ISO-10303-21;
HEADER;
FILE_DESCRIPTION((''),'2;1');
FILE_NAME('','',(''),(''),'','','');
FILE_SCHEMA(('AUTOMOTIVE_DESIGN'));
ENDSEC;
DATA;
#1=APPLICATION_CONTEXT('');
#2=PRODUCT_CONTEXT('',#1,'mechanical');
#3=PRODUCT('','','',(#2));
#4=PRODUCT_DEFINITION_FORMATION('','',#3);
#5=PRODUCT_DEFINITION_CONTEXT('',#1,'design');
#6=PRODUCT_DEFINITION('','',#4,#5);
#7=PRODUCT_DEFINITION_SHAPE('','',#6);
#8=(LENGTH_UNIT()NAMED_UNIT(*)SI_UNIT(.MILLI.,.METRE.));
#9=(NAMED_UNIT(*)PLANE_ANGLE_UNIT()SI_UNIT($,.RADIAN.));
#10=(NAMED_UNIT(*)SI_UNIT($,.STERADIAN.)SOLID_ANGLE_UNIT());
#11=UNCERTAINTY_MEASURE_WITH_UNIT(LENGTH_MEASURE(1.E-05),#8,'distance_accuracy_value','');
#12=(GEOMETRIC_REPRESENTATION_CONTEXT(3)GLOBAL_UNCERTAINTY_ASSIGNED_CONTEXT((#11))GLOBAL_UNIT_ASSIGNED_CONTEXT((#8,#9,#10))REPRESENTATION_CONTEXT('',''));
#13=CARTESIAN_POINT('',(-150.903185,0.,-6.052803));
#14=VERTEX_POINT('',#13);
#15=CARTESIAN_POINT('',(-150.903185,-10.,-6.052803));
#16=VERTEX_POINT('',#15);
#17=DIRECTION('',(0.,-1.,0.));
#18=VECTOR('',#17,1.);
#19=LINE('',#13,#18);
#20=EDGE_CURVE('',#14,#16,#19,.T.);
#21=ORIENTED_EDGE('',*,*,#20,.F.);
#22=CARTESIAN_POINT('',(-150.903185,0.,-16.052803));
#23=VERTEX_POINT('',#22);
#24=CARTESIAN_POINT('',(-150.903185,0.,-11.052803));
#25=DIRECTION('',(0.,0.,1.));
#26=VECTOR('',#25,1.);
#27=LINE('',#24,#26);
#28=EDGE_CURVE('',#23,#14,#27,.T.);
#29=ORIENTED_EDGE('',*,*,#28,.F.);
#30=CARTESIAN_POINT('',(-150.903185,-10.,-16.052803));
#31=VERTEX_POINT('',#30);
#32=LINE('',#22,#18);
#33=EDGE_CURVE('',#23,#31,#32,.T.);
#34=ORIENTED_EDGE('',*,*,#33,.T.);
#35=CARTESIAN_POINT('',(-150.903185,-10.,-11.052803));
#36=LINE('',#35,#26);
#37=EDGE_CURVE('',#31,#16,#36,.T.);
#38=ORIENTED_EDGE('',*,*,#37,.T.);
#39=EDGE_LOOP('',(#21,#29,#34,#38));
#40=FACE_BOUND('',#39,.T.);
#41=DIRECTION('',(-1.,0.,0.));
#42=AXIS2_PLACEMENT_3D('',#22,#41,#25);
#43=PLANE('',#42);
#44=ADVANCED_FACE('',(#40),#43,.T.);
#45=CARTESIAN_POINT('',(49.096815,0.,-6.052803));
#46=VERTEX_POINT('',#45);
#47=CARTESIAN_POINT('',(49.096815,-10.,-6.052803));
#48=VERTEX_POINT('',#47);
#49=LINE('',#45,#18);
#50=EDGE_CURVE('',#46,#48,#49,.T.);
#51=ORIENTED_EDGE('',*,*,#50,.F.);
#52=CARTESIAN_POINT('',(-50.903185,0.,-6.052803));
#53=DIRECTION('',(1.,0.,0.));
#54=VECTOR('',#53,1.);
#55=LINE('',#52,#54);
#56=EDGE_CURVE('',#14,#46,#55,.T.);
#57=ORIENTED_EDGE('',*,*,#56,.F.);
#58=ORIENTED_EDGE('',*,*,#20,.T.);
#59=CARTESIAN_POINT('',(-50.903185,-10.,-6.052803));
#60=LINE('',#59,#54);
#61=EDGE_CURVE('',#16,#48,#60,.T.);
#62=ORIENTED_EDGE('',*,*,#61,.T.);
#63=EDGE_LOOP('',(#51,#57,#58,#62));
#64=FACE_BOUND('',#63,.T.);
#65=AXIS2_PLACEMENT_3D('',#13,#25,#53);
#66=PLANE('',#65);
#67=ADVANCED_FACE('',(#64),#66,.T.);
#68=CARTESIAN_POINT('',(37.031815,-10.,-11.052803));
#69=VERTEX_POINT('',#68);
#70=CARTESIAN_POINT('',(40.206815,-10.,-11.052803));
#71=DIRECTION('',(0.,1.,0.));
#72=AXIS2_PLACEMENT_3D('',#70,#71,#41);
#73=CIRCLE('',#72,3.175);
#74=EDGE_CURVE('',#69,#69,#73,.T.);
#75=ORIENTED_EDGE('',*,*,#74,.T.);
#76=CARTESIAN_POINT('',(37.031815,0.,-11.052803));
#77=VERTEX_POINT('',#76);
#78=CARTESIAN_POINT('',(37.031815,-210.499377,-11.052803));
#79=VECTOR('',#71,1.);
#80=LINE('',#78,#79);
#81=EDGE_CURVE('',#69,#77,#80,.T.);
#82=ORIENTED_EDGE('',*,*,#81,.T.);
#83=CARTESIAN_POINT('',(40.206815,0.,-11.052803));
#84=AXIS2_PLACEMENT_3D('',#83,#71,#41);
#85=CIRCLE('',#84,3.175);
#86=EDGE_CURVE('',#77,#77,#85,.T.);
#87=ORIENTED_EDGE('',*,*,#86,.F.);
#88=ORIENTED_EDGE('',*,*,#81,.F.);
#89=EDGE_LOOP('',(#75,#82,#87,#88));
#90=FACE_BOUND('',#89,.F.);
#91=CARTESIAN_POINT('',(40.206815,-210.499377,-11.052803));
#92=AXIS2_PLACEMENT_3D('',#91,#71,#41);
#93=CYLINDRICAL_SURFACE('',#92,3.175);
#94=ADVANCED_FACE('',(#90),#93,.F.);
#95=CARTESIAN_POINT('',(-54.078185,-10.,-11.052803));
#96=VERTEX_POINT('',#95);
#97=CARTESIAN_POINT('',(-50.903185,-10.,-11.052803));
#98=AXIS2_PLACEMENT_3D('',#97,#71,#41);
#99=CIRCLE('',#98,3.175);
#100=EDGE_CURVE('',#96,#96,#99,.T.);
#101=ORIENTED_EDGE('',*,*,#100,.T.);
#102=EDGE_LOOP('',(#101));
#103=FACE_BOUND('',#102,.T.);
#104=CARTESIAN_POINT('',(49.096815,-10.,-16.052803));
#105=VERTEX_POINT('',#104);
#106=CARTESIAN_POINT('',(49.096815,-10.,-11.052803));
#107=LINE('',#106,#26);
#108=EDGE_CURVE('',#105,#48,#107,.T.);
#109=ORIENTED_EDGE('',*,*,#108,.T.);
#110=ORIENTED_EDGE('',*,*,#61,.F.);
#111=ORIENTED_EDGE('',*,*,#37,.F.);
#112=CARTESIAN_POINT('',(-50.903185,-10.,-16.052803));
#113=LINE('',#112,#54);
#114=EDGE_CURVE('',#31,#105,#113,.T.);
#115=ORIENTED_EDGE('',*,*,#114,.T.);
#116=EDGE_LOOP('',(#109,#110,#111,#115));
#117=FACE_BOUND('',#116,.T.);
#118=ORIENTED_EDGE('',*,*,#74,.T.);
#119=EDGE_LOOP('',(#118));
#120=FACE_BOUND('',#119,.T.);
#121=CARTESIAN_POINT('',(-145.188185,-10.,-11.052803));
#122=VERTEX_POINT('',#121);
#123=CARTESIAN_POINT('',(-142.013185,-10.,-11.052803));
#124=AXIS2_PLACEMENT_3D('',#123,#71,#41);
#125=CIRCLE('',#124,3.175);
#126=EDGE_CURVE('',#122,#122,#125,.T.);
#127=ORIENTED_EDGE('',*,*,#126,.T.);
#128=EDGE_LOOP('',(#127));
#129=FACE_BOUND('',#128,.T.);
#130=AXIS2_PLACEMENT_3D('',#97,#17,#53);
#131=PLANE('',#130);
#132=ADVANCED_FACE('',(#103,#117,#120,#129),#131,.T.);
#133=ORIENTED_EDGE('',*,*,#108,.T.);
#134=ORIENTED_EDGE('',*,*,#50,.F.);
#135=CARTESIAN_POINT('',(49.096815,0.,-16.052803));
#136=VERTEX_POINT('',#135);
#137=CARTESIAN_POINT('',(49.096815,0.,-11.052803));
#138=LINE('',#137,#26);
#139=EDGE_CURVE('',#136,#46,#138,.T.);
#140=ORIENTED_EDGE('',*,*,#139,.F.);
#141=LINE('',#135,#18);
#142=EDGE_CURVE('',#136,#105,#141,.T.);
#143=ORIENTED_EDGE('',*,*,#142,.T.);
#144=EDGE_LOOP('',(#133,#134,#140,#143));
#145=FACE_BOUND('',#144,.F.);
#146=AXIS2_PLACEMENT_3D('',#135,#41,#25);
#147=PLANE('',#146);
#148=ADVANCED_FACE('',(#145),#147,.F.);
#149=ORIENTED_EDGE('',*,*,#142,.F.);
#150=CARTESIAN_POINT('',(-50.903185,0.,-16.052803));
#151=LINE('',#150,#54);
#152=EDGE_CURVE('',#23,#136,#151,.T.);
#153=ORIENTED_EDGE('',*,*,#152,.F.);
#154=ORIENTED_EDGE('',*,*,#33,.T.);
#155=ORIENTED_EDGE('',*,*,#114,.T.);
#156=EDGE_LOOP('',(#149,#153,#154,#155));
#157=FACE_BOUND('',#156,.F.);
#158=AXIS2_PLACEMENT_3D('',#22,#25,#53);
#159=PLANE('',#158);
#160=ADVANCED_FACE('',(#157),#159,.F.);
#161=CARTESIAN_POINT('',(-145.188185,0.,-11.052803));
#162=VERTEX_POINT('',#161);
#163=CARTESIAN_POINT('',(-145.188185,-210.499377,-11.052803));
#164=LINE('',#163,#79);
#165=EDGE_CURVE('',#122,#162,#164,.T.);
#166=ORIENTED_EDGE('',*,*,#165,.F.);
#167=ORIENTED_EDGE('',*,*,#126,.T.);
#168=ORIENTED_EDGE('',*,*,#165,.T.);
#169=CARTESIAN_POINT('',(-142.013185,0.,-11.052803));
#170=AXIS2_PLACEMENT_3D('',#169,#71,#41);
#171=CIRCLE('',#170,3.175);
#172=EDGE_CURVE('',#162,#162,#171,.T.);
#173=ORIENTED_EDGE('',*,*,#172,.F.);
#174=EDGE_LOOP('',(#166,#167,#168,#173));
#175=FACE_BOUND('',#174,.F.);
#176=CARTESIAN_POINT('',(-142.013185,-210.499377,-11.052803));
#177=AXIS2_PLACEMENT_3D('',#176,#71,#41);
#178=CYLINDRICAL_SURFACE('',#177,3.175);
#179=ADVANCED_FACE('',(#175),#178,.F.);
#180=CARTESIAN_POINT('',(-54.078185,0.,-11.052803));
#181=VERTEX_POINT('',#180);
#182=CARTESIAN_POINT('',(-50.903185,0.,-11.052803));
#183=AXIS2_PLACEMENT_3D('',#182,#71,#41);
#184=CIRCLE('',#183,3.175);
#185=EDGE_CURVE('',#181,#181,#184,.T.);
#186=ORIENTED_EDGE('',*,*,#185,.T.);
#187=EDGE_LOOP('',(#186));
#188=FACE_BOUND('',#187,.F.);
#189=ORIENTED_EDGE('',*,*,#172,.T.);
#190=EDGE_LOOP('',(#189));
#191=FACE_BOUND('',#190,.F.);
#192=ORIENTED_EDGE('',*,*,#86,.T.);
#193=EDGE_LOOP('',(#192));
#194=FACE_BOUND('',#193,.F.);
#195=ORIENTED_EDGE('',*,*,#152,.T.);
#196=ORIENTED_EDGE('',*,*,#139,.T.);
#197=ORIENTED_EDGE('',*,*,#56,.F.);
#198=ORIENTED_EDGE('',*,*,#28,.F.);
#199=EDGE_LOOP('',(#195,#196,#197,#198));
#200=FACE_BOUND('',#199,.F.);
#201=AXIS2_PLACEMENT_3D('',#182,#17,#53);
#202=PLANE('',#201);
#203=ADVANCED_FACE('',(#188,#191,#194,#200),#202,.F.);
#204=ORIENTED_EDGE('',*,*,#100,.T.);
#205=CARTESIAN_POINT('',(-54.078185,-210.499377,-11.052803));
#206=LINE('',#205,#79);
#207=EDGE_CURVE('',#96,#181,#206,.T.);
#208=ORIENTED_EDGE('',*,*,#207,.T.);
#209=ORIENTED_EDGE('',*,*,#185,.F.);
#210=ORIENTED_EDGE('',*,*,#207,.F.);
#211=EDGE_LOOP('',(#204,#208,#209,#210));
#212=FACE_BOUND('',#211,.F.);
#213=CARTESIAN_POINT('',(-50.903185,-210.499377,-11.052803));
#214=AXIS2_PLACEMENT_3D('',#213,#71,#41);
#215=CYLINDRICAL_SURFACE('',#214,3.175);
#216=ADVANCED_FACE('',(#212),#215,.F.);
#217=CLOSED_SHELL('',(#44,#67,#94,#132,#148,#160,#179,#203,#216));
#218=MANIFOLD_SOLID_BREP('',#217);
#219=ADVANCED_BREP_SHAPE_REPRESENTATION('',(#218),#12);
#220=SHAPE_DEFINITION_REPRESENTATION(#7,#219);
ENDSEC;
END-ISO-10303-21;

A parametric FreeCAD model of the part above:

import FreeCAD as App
import Part
import Sketcher


def add_polygon(sketch, points):
    """Adds a closed chain of lines whose ends are joined by coincident constraints."""
    first, n = sketch.GeometryCount, len(points)
    for a, b in zip(points, points[1:] + points[:1]):
        sketch.addGeometry(Part.LineSegment(App.Vector(*a, 0), App.Vector(*b, 0)), False)
    for i in range(n):
        sketch.addConstraint(Sketcher.Constraint("Coincident", first + i, 2, first + (i + 1) % n, 1))

doc = App.newDocument("Part")
body = doc.addObject("PartDesign::Body", "Body")

sketch1 = body.newObject("Sketcher::SketchObject", "Sketch")
sketch1.AttachmentSupport = (doc.getObject("XZ_Plane"), [""])
sketch1.MapMode = "FlatFace"
add_polygon(sketch1, [(-150.903185, -6.052803), (-150.903185, -16.052803), (49.096815, -16.052803), (49.096815, -6.052803)])
sketch1.addConstraint([
    Sketcher.Constraint("Vertical", 0),
    Sketcher.Constraint("Horizontal", 1),
    Sketcher.Constraint("Vertical", 2),
    Sketcher.Constraint("Horizontal", 3),
    Sketcher.Constraint("DistanceX", 1, 1, 1, 2, 200.0),
    Sketcher.Constraint("DistanceY", 0, 2, 0, 1, 10.0),
    Sketcher.Constraint("DistanceX", 0, 2, -1, 1, 150.903185),
    Sketcher.Constraint("DistanceY", 0, 2, -1, 1, 16.052803),
])
pad1 = body.newObject("PartDesign::Pad", "Pad")
pad1.Profile = sketch1
pad1.Length = 10

sketch2 = body.newObject("Sketcher::SketchObject", "Sketch001")
sketch2.AttachmentSupport = (doc.getObject("XZ_Plane"), [""])
sketch2.MapMode = "FlatFace"
sketch2.AttachmentOffset = App.Placement(App.Vector(0, 0, 10), App.Rotation())
sketch2.addGeometry(Part.Circle(App.Vector(-142.013185, -11.052803, 0), App.Vector(0, 0, 1), 3.175), False)
sketch2.addConstraint([
    Sketcher.Constraint("Diameter", 0, 6.35),
    Sketcher.Constraint("DistanceX", 0, 3, -1, 1, 142.013185),
    Sketcher.Constraint("DistanceY", 0, 3, -1, 1, 11.052803),
])
doc.recompute()
hole = body.newObject("PartDesign::Hole", "Hole")
hole.Profile = sketch2
hole.ThreadType = "None"
hole.Diameter = 6.35
hole.DepthType = "ThroughAll"

sketch3 = body.newObject("Sketcher::SketchObject", "Sketch002")
sketch3.AttachmentSupport = (doc.getObject("XZ_Plane"), [""])
sketch3.MapMode = "FlatFace"
sketch3.AttachmentOffset = App.Placement(App.Vector(0, 0, 10), App.Rotation())
sketch3.addGeometry(Part.Circle(App.Vector(40.206815, -11.052803, 0), App.Vector(0, 0, 1), 3.175), False)
sketch3.addConstraint([
    Sketcher.Constraint("Diameter", 0, 6.35),
    Sketcher.Constraint("DistanceX", -1, 1, 0, 3, 40.206815),
    Sketcher.Constraint("DistanceY", 0, 3, -1, 1, 11.052803),
])
doc.recompute()
hole2 = body.newObject("PartDesign::Hole", "Hole001")
hole2.Profile = sketch3
hole2.ThreadType = "None"
hole2.Diameter = 6.35
hole2.DepthType = "ThroughAll"

sketch4 = body.newObject("Sketcher::SketchObject", "Sketch003")
sketch4.AttachmentSupport = (doc.getObject("XZ_Plane"), [""])
sketch4.MapMode = "FlatFace"
sketch4.AttachmentOffset = App.Placement(App.Vector(0, 0, 10), App.Rotation())
sketch4.addGeometry(Part.Circle(App.Vector(-50.903185, -11.052803, 0), App.Vector(0, 0, 1), 3.175), False)
sketch4.addConstraint([
    Sketcher.Constraint("Diameter", 0, 6.35),
    Sketcher.Constraint("DistanceX", 0, 3, -1, 1, 50.903185),
    Sketcher.Constraint("DistanceY", 0, 3, -1, 1, 11.052803),
])
doc.recompute()
hole3 = body.newObject("PartDesign::Hole", "Hole002")
hole3.Profile = sketch4
hole3.ThreadType = "None"
hole3.Diameter = 6.35
hole3.DepthType = "ThroughAll"

doc.recompute()
